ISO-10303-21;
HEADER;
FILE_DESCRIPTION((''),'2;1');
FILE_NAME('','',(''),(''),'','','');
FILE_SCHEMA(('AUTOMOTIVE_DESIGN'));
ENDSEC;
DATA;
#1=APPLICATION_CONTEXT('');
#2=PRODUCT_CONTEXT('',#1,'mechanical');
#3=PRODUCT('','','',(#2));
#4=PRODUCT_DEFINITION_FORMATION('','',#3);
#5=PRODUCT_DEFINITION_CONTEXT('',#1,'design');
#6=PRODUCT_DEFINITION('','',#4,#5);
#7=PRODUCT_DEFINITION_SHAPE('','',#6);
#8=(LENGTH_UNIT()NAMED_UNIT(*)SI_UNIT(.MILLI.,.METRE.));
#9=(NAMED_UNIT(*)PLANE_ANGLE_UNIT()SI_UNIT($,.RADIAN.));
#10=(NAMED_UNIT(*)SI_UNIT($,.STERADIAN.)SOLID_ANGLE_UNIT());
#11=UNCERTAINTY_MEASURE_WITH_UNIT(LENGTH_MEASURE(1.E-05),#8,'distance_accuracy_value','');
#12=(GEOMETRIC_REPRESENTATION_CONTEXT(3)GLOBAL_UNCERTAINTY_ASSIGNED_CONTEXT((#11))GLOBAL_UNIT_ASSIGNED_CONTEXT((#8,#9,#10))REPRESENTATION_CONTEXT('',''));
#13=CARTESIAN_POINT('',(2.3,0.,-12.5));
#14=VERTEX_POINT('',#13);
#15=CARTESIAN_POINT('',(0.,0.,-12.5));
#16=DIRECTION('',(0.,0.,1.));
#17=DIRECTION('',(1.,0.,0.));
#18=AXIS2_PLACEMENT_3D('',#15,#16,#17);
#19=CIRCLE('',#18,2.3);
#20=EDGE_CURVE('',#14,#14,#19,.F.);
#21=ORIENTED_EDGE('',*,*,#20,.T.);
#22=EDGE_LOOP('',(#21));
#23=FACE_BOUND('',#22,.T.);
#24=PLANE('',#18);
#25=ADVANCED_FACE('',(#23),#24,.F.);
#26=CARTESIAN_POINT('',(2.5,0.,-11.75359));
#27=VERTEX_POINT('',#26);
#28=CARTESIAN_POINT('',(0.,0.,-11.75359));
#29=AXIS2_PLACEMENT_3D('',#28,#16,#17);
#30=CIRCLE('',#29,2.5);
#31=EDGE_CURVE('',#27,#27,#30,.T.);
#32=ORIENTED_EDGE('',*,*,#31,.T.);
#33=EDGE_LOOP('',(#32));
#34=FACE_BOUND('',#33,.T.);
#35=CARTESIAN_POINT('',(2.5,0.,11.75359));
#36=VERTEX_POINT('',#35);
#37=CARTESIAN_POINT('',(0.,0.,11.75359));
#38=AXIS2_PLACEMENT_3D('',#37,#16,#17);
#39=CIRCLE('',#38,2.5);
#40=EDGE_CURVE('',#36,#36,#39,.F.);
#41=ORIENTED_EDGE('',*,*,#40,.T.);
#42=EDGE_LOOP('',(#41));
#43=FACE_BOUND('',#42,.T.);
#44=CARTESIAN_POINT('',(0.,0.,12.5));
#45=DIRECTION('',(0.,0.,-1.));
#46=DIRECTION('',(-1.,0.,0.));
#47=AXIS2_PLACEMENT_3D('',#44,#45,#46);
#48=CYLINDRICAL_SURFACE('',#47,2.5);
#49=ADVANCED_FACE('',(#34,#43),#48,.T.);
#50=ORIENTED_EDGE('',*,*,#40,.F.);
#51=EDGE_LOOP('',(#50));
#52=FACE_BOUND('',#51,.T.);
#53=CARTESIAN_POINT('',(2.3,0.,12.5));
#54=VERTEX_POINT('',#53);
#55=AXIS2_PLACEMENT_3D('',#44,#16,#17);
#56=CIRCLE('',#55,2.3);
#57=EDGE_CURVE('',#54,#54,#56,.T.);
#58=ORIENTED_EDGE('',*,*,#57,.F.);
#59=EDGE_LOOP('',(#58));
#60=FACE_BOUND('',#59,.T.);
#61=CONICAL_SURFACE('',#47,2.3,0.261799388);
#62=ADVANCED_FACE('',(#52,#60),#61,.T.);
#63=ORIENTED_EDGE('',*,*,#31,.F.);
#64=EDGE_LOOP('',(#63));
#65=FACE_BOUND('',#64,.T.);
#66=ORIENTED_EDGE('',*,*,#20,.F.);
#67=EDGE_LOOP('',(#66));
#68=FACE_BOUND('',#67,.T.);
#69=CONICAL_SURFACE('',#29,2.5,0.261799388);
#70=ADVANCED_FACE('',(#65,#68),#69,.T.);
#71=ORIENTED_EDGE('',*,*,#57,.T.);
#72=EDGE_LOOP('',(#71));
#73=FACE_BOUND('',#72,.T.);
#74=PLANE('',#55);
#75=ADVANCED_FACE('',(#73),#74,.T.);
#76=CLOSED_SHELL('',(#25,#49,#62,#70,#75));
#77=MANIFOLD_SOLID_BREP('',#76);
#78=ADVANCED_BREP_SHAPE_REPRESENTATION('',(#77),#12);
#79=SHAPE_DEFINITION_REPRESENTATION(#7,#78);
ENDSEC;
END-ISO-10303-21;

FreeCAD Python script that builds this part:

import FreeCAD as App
import Part
import Sketcher
from FreeCAD import Vector
Q = App.Units.Quantity


def edges_at(feature, points):
    """Names of the edges that pass closest to the given points."""
    edges = feature.Shape.Edges
    near = lambda p: min(range(len(edges)), key=lambda i: edges[i].distToShape(Part.Vertex(*p))[0])
    return sorted({f"Edge{near(p) + 1}" for p in points})

doc = App.newDocument("Part")
body = doc.addObject("PartDesign::Body", "Body")

sketch1 = body.newObject("Sketcher::SketchObject", "Sketch")
sketch1.AttachmentSupport = (doc.getObject("XY_Plane"), [""])
sketch1.MapMode = "FlatFace"
sketch1.addGeometry(Part.Circle(Vector(0, 0, 0), Vector(0, 0, 1), 2.5), False)
sketch1.addConstraint(Sketcher.Constraint("Coincident", 0, 3, -1, 1))
sketch1.addConstraint(Sketcher.Constraint("Diameter", 0, Q("5 mm")))
pad1 = body.newObject("PartDesign::Pad", "Pad")
pad1.Profile = sketch1
pad1.Length = 25
pad1.Midplane = True
doc.recompute()

chamfer = body.newObject("PartDesign::Chamfer", "Chamfer")
chamfer.Base = (pad1, edges_at(pad1, [(-2.5, 0, 12.5)]))
chamfer.ChamferType = "Two distances"
chamfer.Size = 0.2
chamfer.Size2 = 0.74641
chamfer.FlipDirection = True
doc.recompute()

chamfer2 = body.newObject("PartDesign::Chamfer", "Chamfer001")
chamfer2.Base = (chamfer, edges_at(chamfer, [(-2.5, 0, -12.5)]))
chamfer2.ChamferType = "Two distances"
chamfer2.Size = 0.2
chamfer2.Size2 = 0.74641
chamfer2.FlipDirection = True

doc.recompute()
